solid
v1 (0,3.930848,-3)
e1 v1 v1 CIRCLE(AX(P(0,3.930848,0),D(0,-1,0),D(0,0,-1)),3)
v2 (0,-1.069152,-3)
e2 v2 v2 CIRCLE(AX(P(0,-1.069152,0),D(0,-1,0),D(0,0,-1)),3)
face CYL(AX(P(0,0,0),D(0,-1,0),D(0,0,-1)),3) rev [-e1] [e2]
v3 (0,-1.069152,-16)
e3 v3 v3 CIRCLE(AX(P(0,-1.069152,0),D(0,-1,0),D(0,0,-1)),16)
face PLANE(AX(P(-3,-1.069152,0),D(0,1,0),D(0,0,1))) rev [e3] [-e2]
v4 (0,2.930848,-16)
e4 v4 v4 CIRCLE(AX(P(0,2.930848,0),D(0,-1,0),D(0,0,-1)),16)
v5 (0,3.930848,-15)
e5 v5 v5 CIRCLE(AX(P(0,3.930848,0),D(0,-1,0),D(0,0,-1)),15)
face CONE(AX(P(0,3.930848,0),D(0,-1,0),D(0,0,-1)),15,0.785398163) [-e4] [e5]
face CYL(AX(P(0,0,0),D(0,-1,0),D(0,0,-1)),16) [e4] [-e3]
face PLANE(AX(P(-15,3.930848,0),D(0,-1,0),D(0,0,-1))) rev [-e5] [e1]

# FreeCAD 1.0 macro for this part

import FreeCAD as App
import Part
import Sketcher
Q = App.Units.Quantity


def add_polygon(sketch, points):
    """Adds a closed chain of lines whose ends are joined by coincident constraints."""
    first, n = sketch.GeometryCount, len(points)
    for a, b in zip(points, points[1:] + points[:1]):
        sketch.addGeometry(Part.LineSegment(App.Vector(*a, 0), App.Vector(*b, 0)), False)
    for i in range(n):
        sketch.addConstraint(Sketcher.Constraint("Coincident", first + i, 2, first + (i + 1) % n, 1))

doc = App.newDocument("Part")
body = doc.addObject("PartDesign::Body", "Body")

sketch1 = body.newObject("Sketcher::SketchObject", "Sketch")
sketch1.AttachmentSupport = (doc.getObject("XY_Plane"), [""])
sketch1.MapMode = "FlatFace"
add_polygon(sketch1, [(-16, -1.069152), (-3, -1.069152), (-3, 3.930848), (-15, 3.930848), (-16, 2.930848)])
sketch1.addConstraint([
    Sketcher.Constraint("Horizontal", 0),
    Sketcher.Constraint("Vertical", 1),
    Sketcher.Constraint("Horizontal", 2),
    Sketcher.Constraint("Vertical", 4),
    Sketcher.Constraint("DistanceX", 0, 1, 0, 2, Q("13 mm")),
    Sketcher.Constraint("DistanceX", 2, 2, 2, 1, Q("12 mm")),
    Sketcher.Constraint("DistanceY", 1, 1, 1, 2, Q("5 mm")),
    Sketcher.Constraint("DistanceY", 4, 2, 4, 1, Q("4 mm")),
    Sketcher.Constraint("DistanceX", 0, 2, -1, 1, Q("3 mm")),
    Sketcher.Constraint("DistanceY", 0, 2, -1, 1, Q("1.069152 mm")),
])
revolution = body.newObject("PartDesign::Revolution", "Revolution")
revolution.Profile = sketch1
revolution.ReferenceAxis = (sketch1, ["V_Axis"])
revolution.Angle = 360

doc.recompute()
